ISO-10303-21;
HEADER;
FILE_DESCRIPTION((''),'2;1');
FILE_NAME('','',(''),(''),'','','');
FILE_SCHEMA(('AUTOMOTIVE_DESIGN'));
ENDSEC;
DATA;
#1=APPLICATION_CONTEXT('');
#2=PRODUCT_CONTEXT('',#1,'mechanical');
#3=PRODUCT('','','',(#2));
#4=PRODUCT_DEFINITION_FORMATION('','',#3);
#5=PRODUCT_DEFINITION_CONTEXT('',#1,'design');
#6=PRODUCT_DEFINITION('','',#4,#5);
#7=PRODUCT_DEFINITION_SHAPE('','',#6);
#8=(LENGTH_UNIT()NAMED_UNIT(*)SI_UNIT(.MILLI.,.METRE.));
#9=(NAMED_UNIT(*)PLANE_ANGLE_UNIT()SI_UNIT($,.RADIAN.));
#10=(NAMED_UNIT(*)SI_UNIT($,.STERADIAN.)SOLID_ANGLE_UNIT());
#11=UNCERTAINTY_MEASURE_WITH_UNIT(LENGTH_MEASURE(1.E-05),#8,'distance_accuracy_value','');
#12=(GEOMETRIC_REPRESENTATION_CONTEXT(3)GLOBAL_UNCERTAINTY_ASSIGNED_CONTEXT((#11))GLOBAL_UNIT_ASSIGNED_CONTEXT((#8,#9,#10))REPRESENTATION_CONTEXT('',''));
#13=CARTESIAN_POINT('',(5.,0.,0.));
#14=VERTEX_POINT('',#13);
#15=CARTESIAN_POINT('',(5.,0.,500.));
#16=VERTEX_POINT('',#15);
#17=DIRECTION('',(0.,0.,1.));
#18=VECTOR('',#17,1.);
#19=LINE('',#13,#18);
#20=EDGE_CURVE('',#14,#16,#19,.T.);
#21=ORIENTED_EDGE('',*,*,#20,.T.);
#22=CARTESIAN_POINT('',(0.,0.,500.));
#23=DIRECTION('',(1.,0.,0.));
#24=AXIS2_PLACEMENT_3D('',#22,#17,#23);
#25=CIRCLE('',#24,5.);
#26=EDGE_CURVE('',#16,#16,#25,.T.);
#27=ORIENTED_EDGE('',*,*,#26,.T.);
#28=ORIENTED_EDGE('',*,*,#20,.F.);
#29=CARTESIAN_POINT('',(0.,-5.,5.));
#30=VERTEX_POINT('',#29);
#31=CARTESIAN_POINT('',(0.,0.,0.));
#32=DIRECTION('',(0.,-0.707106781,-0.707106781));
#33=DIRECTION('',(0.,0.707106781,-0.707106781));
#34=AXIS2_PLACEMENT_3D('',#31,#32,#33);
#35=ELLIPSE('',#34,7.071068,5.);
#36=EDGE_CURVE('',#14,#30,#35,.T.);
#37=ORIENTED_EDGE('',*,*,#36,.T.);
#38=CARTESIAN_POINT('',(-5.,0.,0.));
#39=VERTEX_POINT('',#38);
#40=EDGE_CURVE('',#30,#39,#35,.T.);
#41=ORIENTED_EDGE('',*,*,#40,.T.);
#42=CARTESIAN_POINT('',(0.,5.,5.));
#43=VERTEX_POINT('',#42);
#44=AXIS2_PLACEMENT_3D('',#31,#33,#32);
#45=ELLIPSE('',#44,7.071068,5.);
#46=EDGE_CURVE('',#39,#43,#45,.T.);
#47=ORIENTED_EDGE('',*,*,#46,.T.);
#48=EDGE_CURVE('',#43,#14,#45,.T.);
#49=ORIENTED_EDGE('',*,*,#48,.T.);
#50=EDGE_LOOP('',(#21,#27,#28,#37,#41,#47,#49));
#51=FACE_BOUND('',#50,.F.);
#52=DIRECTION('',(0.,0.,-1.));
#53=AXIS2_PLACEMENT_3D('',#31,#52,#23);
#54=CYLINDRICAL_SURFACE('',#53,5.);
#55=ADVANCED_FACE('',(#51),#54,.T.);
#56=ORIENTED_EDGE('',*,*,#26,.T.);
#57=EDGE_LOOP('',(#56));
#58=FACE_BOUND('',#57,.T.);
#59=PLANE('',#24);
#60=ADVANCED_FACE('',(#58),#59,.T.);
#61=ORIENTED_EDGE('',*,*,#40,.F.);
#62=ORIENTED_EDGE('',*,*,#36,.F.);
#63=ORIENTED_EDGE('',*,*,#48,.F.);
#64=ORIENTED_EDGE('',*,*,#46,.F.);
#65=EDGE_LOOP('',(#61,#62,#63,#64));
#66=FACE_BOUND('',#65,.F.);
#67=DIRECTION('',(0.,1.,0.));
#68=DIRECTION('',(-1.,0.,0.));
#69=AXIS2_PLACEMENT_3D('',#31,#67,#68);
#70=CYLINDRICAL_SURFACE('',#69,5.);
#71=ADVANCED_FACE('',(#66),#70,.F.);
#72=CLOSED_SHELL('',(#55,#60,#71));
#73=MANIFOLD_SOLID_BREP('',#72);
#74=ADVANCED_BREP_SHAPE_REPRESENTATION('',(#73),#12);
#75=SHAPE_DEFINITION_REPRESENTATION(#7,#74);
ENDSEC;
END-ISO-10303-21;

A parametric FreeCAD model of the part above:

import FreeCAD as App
import Part
import Sketcher

V = App.Vector
Q = App.Units.Quantity


def add_polygon(sketch, points):
    """Adds a closed chain of lines whose ends are joined by coincident constraints."""
    first, n = sketch.GeometryCount, len(points)
    for a, b in zip(points, points[1:] + points[:1]):
        sketch.addGeometry(Part.LineSegment(App.Vector(*a, 0), App.Vector(*b, 0)), False)
    for i in range(n):
        sketch.addConstraint(Sketcher.Constraint("Coincident", first + i, 2, first + (i + 1) % n, 1))

doc = App.newDocument("Part")
body = doc.addObject("PartDesign::Body", "Body")

# Sketch on XY plane
sketch1 = body.newObject("Sketcher::SketchObject", "Sketch")
sketch1.AttachmentSupport = (doc.getObject("XY_Plane"), [""])
sketch1.MapMode = "FlatFace"
sketch1.addGeometry(Part.Circle(V(0, 0, 0), V(0, 0, 1), 5), False)
sketch1.addConstraint([
    Sketcher.Constraint("Coincident", 0, 3, -1, 1),
    Sketcher.Constraint("Diameter", 0, Q("10 mm")),
])
pad1 = body.newObject("PartDesign::Pad", "Pad")
pad1.Profile = sketch1
pad1.Length = 500

# Sketch on XY plane
sketch2 = body.newObject("Sketcher::SketchObject", "Sketch001")
sketch2.AttachmentSupport = (doc.getObject("XY_Plane"), [""])
sketch2.MapMode = "FlatFace"
add_polygon(sketch2, [(-5, 5), (-5, -5), (0, -5), (0, 5)])  # lines 0-3
sketch2.addConstraint([
    Sketcher.Constraint("Vertical", 0),
    Sketcher.Constraint("Horizontal", 1),
    Sketcher.Constraint("Vertical", 2),
    Sketcher.Constraint("Horizontal", 3),
    Sketcher.Constraint("Symmetric", 1, 2, 2, 2, -1, 1),
    Sketcher.Constraint("DistanceX", 1, 1, 1, 2, Q("5 mm")),
    Sketcher.Constraint("DistanceY", 0, 2, 0, 1, Q("10 mm")),
])
groove = body.newObject("PartDesign::Groove", "Groove")
groove.Profile = sketch2
groove.ReferenceAxis = (sketch2, ["V_Axis"])
groove.Angle = 360

doc.recompute()
